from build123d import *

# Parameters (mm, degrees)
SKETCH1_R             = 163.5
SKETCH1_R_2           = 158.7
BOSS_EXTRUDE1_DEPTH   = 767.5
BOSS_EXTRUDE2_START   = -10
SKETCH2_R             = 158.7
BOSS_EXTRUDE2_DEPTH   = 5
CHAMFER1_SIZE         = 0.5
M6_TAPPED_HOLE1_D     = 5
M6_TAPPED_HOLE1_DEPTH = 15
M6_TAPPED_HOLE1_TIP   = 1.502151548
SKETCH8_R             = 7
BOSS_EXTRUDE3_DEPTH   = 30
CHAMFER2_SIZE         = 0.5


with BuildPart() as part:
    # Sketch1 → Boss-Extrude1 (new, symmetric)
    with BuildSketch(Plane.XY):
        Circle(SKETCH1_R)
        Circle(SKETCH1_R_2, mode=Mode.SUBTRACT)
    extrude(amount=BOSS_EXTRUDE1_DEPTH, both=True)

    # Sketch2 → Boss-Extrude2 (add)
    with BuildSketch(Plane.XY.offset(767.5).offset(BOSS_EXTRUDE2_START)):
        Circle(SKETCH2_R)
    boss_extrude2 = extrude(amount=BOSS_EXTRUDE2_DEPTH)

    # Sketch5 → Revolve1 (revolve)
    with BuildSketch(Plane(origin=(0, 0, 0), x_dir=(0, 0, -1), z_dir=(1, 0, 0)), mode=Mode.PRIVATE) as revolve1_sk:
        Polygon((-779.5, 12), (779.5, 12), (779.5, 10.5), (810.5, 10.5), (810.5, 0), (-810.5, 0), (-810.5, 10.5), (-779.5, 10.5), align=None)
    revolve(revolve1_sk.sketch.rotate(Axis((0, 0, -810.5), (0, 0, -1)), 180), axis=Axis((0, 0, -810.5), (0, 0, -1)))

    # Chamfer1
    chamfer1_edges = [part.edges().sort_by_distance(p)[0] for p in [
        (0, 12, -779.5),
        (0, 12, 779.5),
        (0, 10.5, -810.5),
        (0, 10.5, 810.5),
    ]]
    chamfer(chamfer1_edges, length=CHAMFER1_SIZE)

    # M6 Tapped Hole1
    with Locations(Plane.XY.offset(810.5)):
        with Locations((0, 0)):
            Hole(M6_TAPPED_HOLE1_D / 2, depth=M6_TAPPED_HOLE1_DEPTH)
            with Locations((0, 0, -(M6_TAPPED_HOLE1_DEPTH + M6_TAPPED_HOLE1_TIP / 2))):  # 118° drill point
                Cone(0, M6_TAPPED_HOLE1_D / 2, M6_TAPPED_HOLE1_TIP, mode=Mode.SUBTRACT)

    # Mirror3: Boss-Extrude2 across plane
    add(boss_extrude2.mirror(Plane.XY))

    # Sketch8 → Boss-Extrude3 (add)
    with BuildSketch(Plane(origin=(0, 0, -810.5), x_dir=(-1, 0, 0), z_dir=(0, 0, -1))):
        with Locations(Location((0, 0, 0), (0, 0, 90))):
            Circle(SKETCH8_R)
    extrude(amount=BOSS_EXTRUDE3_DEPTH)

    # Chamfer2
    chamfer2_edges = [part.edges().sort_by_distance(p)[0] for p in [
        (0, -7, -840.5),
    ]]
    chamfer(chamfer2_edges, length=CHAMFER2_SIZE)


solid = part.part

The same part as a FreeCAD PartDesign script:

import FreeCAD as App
import Part
import Sketcher

V = App.Vector


def edges_at(feature, points):
    """Names of the edges that pass closest to the given points."""
    edges = feature.Shape.Edges
    near = lambda p: min(range(len(edges)), key=lambda i: edges[i].distToShape(Part.Vertex(*p))[0])
    return sorted({f"Edge{near(p) + 1}" for p in points})


def add_polygon(sketch, points):
    """Adds a closed chain of lines whose ends are joined by coincident constraints."""
    first, n = sketch.GeometryCount, len(points)
    for a, b in zip(points, points[1:] + points[:1]):
        sketch.addGeometry(Part.LineSegment(App.Vector(*a, 0), App.Vector(*b, 0)), False)
    for i in range(n):
        sketch.addConstraint(Sketcher.Constraint("Coincident", first + i, 2, first + (i + 1) % n, 1))

doc = App.newDocument("Part")
body = doc.addObject("PartDesign::Body", "Body")

sketch1 = body.newObject("Sketcher::SketchObject", "Sketch")
sketch1.AttachmentSupport = (doc.getObject("XY_Plane"), [""])
sketch1.MapMode = "FlatFace"
sketch1.addGeometry(Part.Circle(V(0, 0, 0), V(0, 0, 1), 163.5), False)
sketch1.addGeometry(Part.Circle(V(0, 0, 0), V(0, 0, 1), 158.7), False)
sketch1.addConstraint(Sketcher.Constraint("Coincident", 0, 3, -1, 1))
sketch1.addConstraint(Sketcher.Constraint("Coincident", 1, 3, -1, 1))
sketch1.addConstraint(Sketcher.Constraint("Diameter", 0, 327.0))
sketch1.addConstraint(Sketcher.Constraint("Diameter", 1, 317.4))
pad1 = body.newObject("PartDesign::Pad", "Pad")
pad1.Profile = sketch1
pad1.Length = 1535
pad1.Midplane = True

sketch2 = body.newObject("Sketcher::SketchObject", "Sketch001")
sketch2.AttachmentSupport = (doc.getObject("XY_Plane"), [""])
sketch2.MapMode = "FlatFace"
sketch2.AttachmentOffset = App.Placement(V(0, 0, 757.5), App.Rotation())
sketch2.addGeometry(Part.Circle(V(0, 0, 0), V(0, 0, 1), 158.7), False)
sketch2.addConstraint(Sketcher.Constraint("Coincident", 0, 3, -1, 1))
sketch2.addConstraint(Sketcher.Constraint("Diameter", 0, 317.4))
pad2 = body.newObject("PartDesign::Pad", "Pad001")
pad2.Profile = sketch2
pad2.Length = 5

sketch3 = body.newObject("Sketcher::SketchObject", "Sketch002")
sketch3.AttachmentSupport = (doc.getObject("YZ_Plane"), [""])
sketch3.MapMode = "FlatFace"
add_polygon(sketch3, [(12, -779.5), (12, 779.5), (10.5, 779.5), (10.5, 810.5), (0, 810.5), (0, -810.5), (10.5, -810.5), (10.5, -779.5)])
sketch3.addConstraint(Sketcher.Constraint("Vertical", 0))
sketch3.addConstraint(Sketcher.Constraint("Horizontal", 1))
sketch3.addConstraint(Sketcher.Constraint("Vertical", 2))
sketch3.addConstraint(Sketcher.Constraint("Horizontal", 3))
sketch3.addConstraint(Sketcher.Constraint("Vertical", 4))
sketch3.addConstraint(Sketcher.Constraint("Horizontal", 5))
sketch3.addConstraint(Sketcher.Constraint("Vertical", 6))
sketch3.addConstraint(Sketcher.Constraint("Horizontal", 7))
sketch3.addConstraint(Sketcher.Constraint("Symmetric", 3, 2, 4, 2, -1, 1))
sketch3.addConstraint(Sketcher.Constraint("Symmetric", 1, 2, 6, 2, -1))
sketch3.addConstraint(Sketcher.Constraint("DistanceY", 0, 1, 0, 2, 1559.0))
sketch3.addConstraint(Sketcher.Constraint("DistanceY", 2, 1, 2, 2, 31.0))
sketch3.addConstraint(Sketcher.Constraint("DistanceX", 1, 2, 1, 1, 1.5))
sketch3.addConstraint(Sketcher.Constraint("DistanceX", 3, 2, 3, 1, 10.5))
revolution = body.newObject("PartDesign::Revolution", "Revolution")
revolution.Profile = sketch3
revolution.ReferenceAxis = (sketch3, ["V_Axis"])
revolution.Angle = 360
doc.recompute()

chamfer = body.newObject("PartDesign::Chamfer", "Chamfer")
chamfer.Base = (revolution, edges_at(revolution, [
    (0, 12, -779.5),
    (0, 12, 779.5),
    (0, 10.5, -810.5),
    (0, 10.5, 810.5),
]))
chamfer.Size = 0.5

sketch4 = body.newObject("Sketcher::SketchObject", "Sketch003")
sketch4.AttachmentSupport = (doc.getObject("XY_Plane"), [""])
sketch4.MapMode = "FlatFace"
sketch4.AttachmentOffset = App.Placement(V(0, 0, 810.5), App.Rotation())
sketch4.addGeometry(Part.Circle(V(0, 0, 0), V(0, 0, 1), 2.5), False)
sketch4.addConstraint(Sketcher.Constraint("Coincident", 0, 3, -1, 1))
sketch4.addConstraint(Sketcher.Constraint("Diameter", 0, 5.0))
doc.recompute()
hole = body.newObject("PartDesign::Hole", "Hole")
hole.Profile = sketch4
hole.ThreadType = "None"
hole.Diameter = 5
hole.DepthType = "Dimension"
hole.Depth = 15
hole.DrillPoint = "Angled"
hole.DrillPointAngle = 118
doc.recompute()

mirrored = body.newObject("PartDesign::Mirrored", "Mirrored")
mirrored.Originals = [pad2]
mirrored.MirrorPlane = (doc.getObject("XY_Plane"), [""])
body.Tip = mirrored

sketch5 = body.newObject("Sketcher::SketchObject", "Sketch004")
sketch5.AttachmentSupport = (doc.getObject("XY_Plane"), [""])
sketch5.MapMode = "FlatFace"
sketch5.AttachmentOffset = App.Placement(V(0, 0, -810.5), App.Rotation())
sketch5.addGeometry(Part.Circle(V(0, 0, 0), V(0, 0, 1), 7), False)
sketch5.addConstraint(Sketcher.Constraint("Coincident", 0, 3, -1, 1))
sketch5.addConstraint(Sketcher.Constraint("Diameter", 0, 14.0))
pad3 = body.newObject("PartDesign::Pad", "Pad002")
pad3.Profile = sketch5
pad3.Length = 30
pad3.Reversed = True
doc.recompute()

chamfer2 = body.newObject("PartDesign::Chamfer", "Chamfer001")
chamfer2.Base = (pad3, edges_at(pad3, [(0, -7, -840.5)]))
chamfer2.Size = 0.5

doc.recompute()
